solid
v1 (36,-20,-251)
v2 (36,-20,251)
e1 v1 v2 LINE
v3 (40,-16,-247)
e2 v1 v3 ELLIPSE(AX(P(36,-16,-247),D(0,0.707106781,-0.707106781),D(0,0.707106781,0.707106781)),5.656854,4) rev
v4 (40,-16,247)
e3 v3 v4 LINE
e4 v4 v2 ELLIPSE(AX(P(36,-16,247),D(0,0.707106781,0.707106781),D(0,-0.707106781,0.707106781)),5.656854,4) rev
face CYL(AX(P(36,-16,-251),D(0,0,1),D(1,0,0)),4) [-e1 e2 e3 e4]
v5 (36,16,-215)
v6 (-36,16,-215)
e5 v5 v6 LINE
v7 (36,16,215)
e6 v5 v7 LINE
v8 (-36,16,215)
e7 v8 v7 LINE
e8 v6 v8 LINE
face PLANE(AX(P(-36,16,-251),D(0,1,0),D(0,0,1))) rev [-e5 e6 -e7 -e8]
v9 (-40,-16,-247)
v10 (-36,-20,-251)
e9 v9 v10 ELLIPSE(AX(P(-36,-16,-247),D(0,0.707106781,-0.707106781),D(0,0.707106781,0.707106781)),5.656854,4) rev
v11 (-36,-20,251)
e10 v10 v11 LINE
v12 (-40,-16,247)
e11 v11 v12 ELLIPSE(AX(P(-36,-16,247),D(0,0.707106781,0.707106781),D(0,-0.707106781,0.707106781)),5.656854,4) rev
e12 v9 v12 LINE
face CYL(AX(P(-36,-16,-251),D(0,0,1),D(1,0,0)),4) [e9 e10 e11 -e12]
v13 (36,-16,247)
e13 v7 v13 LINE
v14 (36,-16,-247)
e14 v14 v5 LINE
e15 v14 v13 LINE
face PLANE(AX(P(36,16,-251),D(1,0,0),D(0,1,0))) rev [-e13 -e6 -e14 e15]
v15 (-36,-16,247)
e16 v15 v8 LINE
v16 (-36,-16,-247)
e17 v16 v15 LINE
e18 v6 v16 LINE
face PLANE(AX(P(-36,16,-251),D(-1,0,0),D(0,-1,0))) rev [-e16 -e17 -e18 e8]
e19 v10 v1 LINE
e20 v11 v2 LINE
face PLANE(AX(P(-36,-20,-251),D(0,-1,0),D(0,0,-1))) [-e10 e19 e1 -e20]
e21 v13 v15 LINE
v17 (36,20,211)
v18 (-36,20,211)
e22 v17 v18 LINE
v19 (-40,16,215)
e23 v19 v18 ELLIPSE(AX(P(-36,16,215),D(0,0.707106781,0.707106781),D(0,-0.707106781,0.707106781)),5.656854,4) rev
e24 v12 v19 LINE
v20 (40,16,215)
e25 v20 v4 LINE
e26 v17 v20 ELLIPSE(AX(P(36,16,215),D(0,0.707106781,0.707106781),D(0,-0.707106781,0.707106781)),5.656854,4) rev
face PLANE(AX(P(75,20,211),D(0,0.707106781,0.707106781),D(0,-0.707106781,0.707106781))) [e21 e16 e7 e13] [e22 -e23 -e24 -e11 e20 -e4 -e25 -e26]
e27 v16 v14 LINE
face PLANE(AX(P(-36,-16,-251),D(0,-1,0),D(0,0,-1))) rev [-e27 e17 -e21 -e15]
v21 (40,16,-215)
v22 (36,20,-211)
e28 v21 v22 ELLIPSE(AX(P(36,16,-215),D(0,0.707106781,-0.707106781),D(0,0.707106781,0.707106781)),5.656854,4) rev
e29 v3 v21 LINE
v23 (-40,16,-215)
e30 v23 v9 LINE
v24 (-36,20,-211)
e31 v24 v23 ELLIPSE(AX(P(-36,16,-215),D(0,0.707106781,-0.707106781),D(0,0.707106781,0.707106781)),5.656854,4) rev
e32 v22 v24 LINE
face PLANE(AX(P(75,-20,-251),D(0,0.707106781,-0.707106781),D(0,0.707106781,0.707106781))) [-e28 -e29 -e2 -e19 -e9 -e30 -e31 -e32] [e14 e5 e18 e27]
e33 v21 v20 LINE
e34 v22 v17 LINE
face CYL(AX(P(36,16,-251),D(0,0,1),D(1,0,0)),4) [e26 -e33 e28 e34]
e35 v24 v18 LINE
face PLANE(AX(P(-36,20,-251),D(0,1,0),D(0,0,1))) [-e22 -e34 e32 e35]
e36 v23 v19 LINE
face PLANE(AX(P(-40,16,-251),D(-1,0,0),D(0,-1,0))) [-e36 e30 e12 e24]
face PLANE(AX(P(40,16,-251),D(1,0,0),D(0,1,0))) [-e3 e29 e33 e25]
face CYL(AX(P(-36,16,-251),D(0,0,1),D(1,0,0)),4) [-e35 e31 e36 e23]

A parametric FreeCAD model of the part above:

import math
import FreeCAD as App
import Part
import Sketcher

V = App.Vector
Q = App.Units.Quantity

doc = App.newDocument("Part")
body = doc.addObject("PartDesign::Body", "Body")

sketch1 = body.newObject("Sketcher::SketchObject", "Sketch")
sketch1.AttachmentSupport = (doc.getObject("XY_Plane"), [""])
sketch1.MapMode = "FlatFace"
sketch1.addGeometry([
    Part.LineSegment(V(36, 20, 0), V(-36, 20, 0)),
    Part.ArcOfCircle(Part.Circle(V(-36, 16, 0), V(0, 0, 1), 4), math.radians(90), math.radians(180)),
    Part.LineSegment(V(-40, 16, 0), V(-40, -16, 0)),
    Part.ArcOfCircle(Part.Circle(V(-36, -16, 0), V(0, 0, 1), 4), math.radians(180), math.radians(270)),
    Part.LineSegment(V(-36, -20, 0), V(36, -20, 0)),
    Part.ArcOfCircle(Part.Circle(V(36, -16, 0), V(0, 0, 1), 4), math.radians(-90), math.radians(0)),
    Part.LineSegment(V(40, -16, 0), V(40, 16, 0)),
    Part.ArcOfCircle(Part.Circle(V(36, 16, 0), V(0, 0, 1), 4), math.radians(0), math.radians(90)),
    Part.LineSegment(V(-36, -16, 0), V(-36, 16, 0)),
    Part.LineSegment(V(-36, 16, 0), V(36, 16, 0)),
    Part.LineSegment(V(36, 16, 0), V(36, -16, 0)),
    Part.LineSegment(V(36, -16, 0), V(-36, -16, 0)),
], False)
sketch1.addConstraint([
    Sketcher.Constraint("Tangent", 0, 2, 1, 1),
    Sketcher.Constraint("Tangent", 1, 2, 2, 1),
    Sketcher.Constraint("Tangent", 2, 2, 3, 1),
    Sketcher.Constraint("Tangent", 3, 2, 4, 1),
    Sketcher.Constraint("Tangent", 4, 2, 5, 1),
    Sketcher.Constraint("Tangent", 5, 2, 6, 1),
    Sketcher.Constraint("Tangent", 6, 2, 7, 1),
    Sketcher.Constraint("Tangent", 7, 2, 0, 1),
    Sketcher.Constraint("Coincident", 8, 2, 9, 1),
    Sketcher.Constraint("Coincident", 9, 2, 10, 1),
    Sketcher.Constraint("Coincident", 10, 2, 11, 1),
    Sketcher.Constraint("Coincident", 11, 2, 8, 1),
    Sketcher.Constraint("Horizontal", 0),
    Sketcher.Constraint("Vertical", 2),
    Sketcher.Constraint("Horizontal", 4),
    Sketcher.Constraint("Vertical", 6),
    Sketcher.Constraint("Vertical", 8),
    Sketcher.Constraint("Horizontal", 9),
    Sketcher.Constraint("Vertical", 10),
    Sketcher.Constraint("Horizontal", 11),
    Sketcher.Constraint("Coincident", 8, 2, 1, 3),
    Sketcher.Constraint("Coincident", 9, 2, 7, 3),
    Sketcher.Constraint("Coincident", 10, 2, 5, 3),
    Sketcher.Constraint("Equal", 1, 3),
    Sketcher.Constraint("Symmetric", 1, 3, 5, 3, -1, 1),
    Sketcher.Constraint("Radius", 1, Q("4 mm")),
    Sketcher.Constraint("DistanceX", 0, 2, 0, 1, Q("72 mm")),
    Sketcher.Constraint("DistanceY", 2, 2, 2, 1, Q("32 mm")),
])
pad1 = body.newObject("PartDesign::Pad", "Pad")
pad1.Profile = sketch1
pad1.Type = "TwoLengths"
pad1.Length = 251
pad1.Length2 = 251

sketch2 = body.newObject("Sketcher::SketchObject", "Sketch001")
sketch2.AttachmentSupport = (doc.getObject("YZ_Plane"), [""])
sketch2.MapMode = "FlatFace"
sketch2.addGeometry([
    Part.LineSegment(V(20, 211, 0), V(20, 251, 0)),
    Part.LineSegment(V(20, 251, 0), V(-20, 251, 0)),
    Part.LineSegment(V(-20, 251, 0), V(20, 211, 0)),
    Part.LineSegment(V(20, -211, 0), V(-20, -251, 0)),
    Part.LineSegment(V(-20, -251, 0), V(20, -251, 0)),
    Part.LineSegment(V(20, -251, 0), V(20, -211, 0)),
], False)
sketch2.addConstraint([
    Sketcher.Constraint("Coincident", 0, 2, 1, 1),
    Sketcher.Constraint("Coincident", 1, 2, 2, 1),
    Sketcher.Constraint("Coincident", 2, 2, 0, 1),
    Sketcher.Constraint("Coincident", 3, 2, 4, 1),
    Sketcher.Constraint("Coincident", 4, 2, 5, 1),
    Sketcher.Constraint("Coincident", 5, 2, 3, 1),
    Sketcher.Constraint("Vertical", 0),
    Sketcher.Constraint("Horizontal", 1),
    Sketcher.Constraint("Horizontal", 4),
    Sketcher.Constraint("Vertical", 5),
    Sketcher.Constraint("Symmetric", 0, 2, 3, 2, -1, 1),
    Sketcher.Constraint("Symmetric", 2, 2, 5, 2, -1),
    Sketcher.Constraint("Perpendicular", 2, 3),
    Sketcher.Constraint("Vertical", 1, 2, 3, 2),
    Sketcher.Constraint("DistanceX", 1, 2, 1, 1, Q("40 mm")),
    Sketcher.Constraint("DistanceY", -1, 1, 0, 2, Q("251 mm")),
])
pocket1 = body.newObject("PartDesign::Pocket", "Pocket")
pocket1.Profile = sketch2
pocket1.Type = "ThroughAll"
pocket1.Midplane = True

doc.recompute()
